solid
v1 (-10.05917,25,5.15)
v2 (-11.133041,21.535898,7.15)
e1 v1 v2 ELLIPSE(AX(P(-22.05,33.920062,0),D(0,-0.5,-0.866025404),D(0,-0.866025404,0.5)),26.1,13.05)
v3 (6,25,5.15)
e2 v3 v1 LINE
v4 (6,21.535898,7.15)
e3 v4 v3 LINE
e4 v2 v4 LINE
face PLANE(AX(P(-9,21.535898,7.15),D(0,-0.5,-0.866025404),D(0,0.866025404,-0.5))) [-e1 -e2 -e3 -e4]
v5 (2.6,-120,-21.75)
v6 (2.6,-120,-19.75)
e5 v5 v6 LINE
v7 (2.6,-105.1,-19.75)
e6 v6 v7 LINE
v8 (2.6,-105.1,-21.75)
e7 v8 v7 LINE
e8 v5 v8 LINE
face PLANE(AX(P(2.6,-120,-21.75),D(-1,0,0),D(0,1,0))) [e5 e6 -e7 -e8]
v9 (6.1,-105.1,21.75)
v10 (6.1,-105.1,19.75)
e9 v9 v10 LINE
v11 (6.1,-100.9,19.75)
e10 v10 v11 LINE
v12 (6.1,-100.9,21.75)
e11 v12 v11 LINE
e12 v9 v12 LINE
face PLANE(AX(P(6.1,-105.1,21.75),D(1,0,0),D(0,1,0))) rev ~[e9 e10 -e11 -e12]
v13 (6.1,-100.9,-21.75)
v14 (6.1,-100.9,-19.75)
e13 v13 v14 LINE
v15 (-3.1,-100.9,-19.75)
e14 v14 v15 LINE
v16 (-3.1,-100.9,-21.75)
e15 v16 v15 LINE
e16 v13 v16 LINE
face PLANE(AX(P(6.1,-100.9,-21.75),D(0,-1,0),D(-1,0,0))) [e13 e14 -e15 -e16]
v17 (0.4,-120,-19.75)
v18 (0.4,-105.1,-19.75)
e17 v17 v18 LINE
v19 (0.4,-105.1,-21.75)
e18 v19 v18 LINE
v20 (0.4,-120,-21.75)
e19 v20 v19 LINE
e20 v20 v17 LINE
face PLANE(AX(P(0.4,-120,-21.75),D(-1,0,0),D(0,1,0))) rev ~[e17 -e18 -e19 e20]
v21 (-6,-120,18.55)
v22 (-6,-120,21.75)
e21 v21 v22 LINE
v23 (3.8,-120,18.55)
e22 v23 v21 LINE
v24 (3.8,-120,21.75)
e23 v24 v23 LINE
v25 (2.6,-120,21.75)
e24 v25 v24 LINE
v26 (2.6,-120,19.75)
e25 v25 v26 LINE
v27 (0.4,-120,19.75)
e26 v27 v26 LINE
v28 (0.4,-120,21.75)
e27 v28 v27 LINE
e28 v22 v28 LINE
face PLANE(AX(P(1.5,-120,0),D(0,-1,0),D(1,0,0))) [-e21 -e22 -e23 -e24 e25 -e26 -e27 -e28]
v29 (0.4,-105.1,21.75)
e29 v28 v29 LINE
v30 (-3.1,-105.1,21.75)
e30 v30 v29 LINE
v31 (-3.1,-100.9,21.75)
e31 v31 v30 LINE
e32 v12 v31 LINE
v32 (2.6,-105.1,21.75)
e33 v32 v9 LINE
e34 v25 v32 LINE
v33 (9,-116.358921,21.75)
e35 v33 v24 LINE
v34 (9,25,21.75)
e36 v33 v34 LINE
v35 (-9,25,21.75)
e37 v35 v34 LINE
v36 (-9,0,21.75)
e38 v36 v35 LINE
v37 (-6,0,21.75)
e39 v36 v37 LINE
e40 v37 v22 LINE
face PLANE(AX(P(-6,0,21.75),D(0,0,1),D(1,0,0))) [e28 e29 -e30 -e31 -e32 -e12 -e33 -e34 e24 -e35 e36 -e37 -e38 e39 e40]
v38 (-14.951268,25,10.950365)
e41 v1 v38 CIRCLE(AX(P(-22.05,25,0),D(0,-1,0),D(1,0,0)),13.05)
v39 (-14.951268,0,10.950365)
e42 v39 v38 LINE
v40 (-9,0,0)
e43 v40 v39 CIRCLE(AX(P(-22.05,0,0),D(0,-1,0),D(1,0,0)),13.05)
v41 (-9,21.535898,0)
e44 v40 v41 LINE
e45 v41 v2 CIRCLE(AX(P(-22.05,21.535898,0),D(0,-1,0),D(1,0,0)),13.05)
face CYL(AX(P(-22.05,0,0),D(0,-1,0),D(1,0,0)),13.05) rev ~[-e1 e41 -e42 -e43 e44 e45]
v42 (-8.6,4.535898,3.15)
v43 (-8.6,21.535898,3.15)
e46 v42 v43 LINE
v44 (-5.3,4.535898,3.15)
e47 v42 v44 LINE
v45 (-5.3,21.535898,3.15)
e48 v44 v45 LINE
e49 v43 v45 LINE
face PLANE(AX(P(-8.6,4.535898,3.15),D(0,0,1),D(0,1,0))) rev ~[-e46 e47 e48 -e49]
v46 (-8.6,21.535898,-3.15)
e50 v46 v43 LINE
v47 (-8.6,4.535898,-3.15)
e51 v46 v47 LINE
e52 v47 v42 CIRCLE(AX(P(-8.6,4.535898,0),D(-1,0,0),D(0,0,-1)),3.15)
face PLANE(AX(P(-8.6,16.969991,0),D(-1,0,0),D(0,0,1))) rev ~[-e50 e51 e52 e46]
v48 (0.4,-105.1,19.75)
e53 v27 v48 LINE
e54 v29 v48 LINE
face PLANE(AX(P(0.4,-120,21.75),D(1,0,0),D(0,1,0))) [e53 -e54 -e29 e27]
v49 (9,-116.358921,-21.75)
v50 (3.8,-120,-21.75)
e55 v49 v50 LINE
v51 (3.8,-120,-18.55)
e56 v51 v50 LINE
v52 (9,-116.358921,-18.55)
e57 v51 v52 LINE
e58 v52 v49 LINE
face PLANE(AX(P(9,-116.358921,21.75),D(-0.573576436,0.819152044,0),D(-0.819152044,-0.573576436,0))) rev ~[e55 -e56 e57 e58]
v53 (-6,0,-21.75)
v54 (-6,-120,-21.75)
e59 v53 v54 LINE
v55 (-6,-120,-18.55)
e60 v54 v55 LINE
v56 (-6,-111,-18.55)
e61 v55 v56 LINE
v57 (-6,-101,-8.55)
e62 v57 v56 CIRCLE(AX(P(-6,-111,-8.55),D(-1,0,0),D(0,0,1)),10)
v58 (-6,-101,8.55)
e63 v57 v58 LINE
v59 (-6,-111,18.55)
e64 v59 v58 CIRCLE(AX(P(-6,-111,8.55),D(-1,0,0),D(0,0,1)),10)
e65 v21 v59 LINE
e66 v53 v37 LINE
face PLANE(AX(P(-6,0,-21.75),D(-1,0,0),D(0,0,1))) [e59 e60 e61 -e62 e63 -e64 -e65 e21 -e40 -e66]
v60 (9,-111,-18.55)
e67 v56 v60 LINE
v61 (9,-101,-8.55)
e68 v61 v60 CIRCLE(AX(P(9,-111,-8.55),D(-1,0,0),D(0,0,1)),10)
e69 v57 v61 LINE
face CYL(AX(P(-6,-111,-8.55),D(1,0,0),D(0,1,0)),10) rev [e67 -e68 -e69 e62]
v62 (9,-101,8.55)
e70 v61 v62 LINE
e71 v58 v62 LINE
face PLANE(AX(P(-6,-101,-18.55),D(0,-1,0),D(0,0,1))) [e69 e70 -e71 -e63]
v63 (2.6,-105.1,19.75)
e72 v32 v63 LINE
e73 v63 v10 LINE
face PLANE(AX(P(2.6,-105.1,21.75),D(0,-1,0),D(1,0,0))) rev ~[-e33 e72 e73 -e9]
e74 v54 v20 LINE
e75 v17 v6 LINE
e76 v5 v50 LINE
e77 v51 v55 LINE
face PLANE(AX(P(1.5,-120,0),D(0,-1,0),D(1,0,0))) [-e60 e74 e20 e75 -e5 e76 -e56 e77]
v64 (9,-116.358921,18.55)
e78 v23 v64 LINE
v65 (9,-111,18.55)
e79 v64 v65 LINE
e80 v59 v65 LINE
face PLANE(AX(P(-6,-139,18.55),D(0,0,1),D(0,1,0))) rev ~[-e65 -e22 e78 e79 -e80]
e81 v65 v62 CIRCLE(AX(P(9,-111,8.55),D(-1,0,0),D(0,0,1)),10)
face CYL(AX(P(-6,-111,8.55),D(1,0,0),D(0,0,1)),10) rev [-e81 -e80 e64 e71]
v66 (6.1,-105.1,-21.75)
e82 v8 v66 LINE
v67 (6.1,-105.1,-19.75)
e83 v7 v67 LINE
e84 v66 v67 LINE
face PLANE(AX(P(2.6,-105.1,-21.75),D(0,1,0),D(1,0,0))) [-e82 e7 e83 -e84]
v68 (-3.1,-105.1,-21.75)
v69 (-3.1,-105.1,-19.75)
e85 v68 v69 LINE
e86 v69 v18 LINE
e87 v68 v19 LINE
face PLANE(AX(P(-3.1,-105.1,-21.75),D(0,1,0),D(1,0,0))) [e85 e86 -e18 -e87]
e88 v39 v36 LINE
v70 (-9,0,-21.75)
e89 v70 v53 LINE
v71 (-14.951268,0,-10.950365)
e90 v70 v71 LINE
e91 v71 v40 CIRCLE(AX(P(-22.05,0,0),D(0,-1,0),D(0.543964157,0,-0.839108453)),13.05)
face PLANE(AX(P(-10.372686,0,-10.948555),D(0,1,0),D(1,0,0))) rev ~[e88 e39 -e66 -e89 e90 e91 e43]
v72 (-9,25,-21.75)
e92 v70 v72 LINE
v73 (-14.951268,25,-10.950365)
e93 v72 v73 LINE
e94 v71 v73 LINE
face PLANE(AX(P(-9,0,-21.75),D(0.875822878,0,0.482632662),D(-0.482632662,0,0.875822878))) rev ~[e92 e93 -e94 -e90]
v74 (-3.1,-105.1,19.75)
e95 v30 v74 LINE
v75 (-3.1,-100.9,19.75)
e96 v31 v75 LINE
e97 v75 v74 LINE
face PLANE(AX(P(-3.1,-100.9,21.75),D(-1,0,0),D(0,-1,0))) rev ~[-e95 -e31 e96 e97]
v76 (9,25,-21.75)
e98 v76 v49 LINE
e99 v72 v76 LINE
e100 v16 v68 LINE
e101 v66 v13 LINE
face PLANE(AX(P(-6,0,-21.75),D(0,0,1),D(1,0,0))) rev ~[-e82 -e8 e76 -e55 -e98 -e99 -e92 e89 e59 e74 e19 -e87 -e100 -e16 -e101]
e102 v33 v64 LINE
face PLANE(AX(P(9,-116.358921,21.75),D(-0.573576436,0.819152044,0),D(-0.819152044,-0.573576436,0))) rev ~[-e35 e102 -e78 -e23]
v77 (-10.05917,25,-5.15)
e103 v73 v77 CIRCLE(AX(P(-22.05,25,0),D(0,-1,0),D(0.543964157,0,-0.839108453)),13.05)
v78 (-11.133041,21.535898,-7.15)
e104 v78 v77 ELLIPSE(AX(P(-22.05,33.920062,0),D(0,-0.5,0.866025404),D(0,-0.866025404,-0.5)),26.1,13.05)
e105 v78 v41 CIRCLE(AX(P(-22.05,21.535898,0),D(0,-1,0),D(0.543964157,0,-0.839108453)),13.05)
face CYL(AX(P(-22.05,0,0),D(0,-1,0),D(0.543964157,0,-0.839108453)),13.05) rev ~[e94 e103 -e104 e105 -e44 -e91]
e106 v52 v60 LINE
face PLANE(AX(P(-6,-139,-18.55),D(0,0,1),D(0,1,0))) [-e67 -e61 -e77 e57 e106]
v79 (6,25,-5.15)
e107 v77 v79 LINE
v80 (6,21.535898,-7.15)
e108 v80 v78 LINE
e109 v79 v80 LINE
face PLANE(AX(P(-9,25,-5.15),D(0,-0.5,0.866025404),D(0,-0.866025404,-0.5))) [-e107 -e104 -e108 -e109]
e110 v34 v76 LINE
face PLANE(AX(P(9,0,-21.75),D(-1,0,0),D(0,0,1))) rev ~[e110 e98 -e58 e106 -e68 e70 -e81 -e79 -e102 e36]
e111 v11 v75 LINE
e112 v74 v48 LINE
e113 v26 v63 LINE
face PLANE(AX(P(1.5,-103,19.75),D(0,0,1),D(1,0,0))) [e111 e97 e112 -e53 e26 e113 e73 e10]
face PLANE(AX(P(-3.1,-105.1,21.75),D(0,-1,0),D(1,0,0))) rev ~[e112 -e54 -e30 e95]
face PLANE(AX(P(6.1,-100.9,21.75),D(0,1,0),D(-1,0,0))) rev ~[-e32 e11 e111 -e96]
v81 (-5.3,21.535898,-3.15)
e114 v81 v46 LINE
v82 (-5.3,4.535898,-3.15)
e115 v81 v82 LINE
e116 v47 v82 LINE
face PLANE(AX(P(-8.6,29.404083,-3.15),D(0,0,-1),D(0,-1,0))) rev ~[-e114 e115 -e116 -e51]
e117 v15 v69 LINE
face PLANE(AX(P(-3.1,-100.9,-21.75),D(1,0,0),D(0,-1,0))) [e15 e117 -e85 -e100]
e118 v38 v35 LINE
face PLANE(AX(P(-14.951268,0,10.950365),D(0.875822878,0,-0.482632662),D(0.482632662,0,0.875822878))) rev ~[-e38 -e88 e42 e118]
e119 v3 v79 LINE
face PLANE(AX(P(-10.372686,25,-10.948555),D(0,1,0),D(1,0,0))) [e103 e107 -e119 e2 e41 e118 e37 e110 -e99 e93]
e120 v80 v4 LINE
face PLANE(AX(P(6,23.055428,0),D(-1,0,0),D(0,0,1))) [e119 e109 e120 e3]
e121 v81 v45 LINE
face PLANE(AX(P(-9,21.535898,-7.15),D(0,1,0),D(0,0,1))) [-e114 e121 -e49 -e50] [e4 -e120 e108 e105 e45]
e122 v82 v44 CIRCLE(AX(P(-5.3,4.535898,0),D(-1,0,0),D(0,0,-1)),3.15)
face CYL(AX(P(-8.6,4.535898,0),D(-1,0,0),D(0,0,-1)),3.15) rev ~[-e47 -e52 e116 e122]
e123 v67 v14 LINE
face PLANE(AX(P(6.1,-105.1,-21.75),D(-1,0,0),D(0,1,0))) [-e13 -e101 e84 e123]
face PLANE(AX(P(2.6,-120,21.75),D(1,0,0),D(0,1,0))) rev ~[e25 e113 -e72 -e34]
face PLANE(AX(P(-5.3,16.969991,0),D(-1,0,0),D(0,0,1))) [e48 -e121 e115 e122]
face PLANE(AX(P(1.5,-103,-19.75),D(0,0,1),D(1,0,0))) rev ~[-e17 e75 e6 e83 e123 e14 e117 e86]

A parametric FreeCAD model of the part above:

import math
import FreeCAD as App
import Part
import Sketcher

V = App.Vector
Q = App.Units.Quantity


def edges_at(feature, points):
    """Names of the edges that pass closest to the given points."""
    edges = feature.Shape.Edges
    near = lambda p: min(range(len(edges)), key=lambda i: edges[i].distToShape(Part.Vertex(*p))[0])
    return sorted({f"Edge{near(p) + 1}" for p in points})


def add_polygon(sketch, points):
    """Adds a closed chain of lines whose ends are joined by coincident constraints."""
    first, n = sketch.GeometryCount, len(points)
    for a, b in zip(points, points[1:] + points[:1]):
        sketch.addGeometry(Part.LineSegment(App.Vector(*a, 0), App.Vector(*b, 0)), False)
    for i in range(n):
        sketch.addConstraint(Sketcher.Constraint("Coincident", first + i, 2, first + (i + 1) % n, 1))

doc = App.newDocument("Part")
body = doc.addObject("PartDesign::Body", "Body")

sketch1 = body.newObject("Sketcher::SketchObject", "Sketch")
sketch1.AttachmentSupport = (doc.getObject("XZ_Plane"), [""])
sketch1.MapMode = "FlatFace"
sketch1.addGeometry(Part.LineSegment(V(-9, -22, 0), V(-15, -11, 0)), False)
sketch1.addGeometry(Part.ArcOfCircle(Part.Circle(V(-22, 0, 0), V(0, 0, 1), 13), math.radians(-57), math.radians(0)), False)
sketch1.addGeometry(Part.ArcOfCircle(Part.Circle(V(-22, 0, 0), V(0, 0, 1), 13), math.radians(0), math.radians(57)), False)
sketch1.addGeometry(Part.LineSegment(V(-15, 11, 0), V(-9, 22, 0)), False)
sketch1.addGeometry(Part.LineSegment(V(-9, 22, 0), V(9, 22, 0)), False)
sketch1.addGeometry(Part.LineSegment(V(9, 22, 0), V(9, -22, 0)), False)
sketch1.addGeometry(Part.LineSegment(V(9, -22, 0), V(-9, -22, 0)), False)
sketch1.addConstraint(Sketcher.Constraint("Coincident", 0, 2, 1, 1))
sketch1.addConstraint(Sketcher.Constraint("Tangent", 1, 2, 2, 1))
sketch1.addConstraint(Sketcher.Constraint("Coincident", 2, 2, 3, 1))
sketch1.addConstraint(Sketcher.Constraint("Coincident", 3, 2, 4, 1))
sketch1.addConstraint(Sketcher.Constraint("Coincident", 4, 2, 5, 1))
sketch1.addConstraint(Sketcher.Constraint("Coincident", 5, 2, 6, 1))
sketch1.addConstraint(Sketcher.Constraint("Coincident", 6, 2, 0, 1))
sketch1.addConstraint(Sketcher.Constraint("Horizontal", 4))
sketch1.addConstraint(Sketcher.Constraint("Vertical", 5))
sketch1.addConstraint(Sketcher.Constraint("Horizontal", 6))
sketch1.addConstraint(Sketcher.Constraint("Equal", 1, 2))
sketch1.addConstraint(Sketcher.Constraint("Symmetric", 3, 2, 5, 2, -1, 1))
sketch1.addConstraint(Sketcher.Constraint("Symmetric", 0, 2, 2, 2, -1))
sketch1.addConstraint(Sketcher.Constraint("PointOnObject", 1, 2, -1))
sketch1.addConstraint(Sketcher.Constraint("Vertical", 1, 2, 3, 2))
sketch1.addConstraint(Sketcher.Constraint("Vertical", 3, 2, 6, 2))
sketch1.addConstraint(Sketcher.Constraint("DistanceX", 4, 1, 4, 2, 18.0))
sketch1.addConstraint(Sketcher.Constraint("Radius", 1, 13.05))
sketch1.addConstraint(Sketcher.Constraint("DistanceY", 5, 2, 5, 1, 43.5))
sketch1.addConstraint(Sketcher.Constraint("DistanceY", 0, 2, 2, 2, 21.900731))
pad1 = body.newObject("PartDesign::Pad", "Pad")
pad1.Profile = sketch1
pad1.Length = 25
pad1.Reversed = True

sketch2 = body.newObject("Sketcher::SketchObject", "Sketch001")
sketch2.AttachmentSupport = (doc.getObject("YZ_Plane"), [""])
sketch2.MapMode = "FlatFace"
sketch2.AttachmentOffset = App.Placement(V(0, 0, -9), App.Rotation())
add_polygon(sketch2, [(25, -5.2), (25, 5.2), (21.5, 7.2), (21.5, -7.2)])
sketch2.addConstraint(Sketcher.Constraint("Vertical", 0))
sketch2.addConstraint(Sketcher.Constraint("Vertical", 2))
sketch2.addConstraint(Sketcher.Constraint("Equal", 1, 3))
sketch2.addConstraint(Sketcher.Constraint("Angle", 1, Q("150 deg")))
sketch2.addConstraint(Sketcher.Constraint("Distance", 1, 4.0))
sketch2.addConstraint(Sketcher.Constraint("DistanceY", 0, 1, 0, 2, 10.3))
sketch2.addConstraint(Sketcher.Constraint("DistanceX", -1, 1, 0, 2, 25.0))
sketch2.addConstraint(Sketcher.Constraint("DistanceY", -1, 1, 0, 2, 5.15))
pocket1 = body.newObject("PartDesign::Pocket", "Pocket")
pocket1.Profile = sketch2
pocket1.Type = "TwoLengths"
pocket1.Length = 15
pocket1.Length2 = 6.951268
pocket1.Reversed = True

sketch3 = body.newObject("Sketcher::SketchObject", "Sketch002")
sketch3.AttachmentSupport = (doc.getObject("YZ_Plane"), [""])
sketch3.MapMode = "FlatFace"
sketch3.AttachmentOffset = App.Placement(V(0, 0, -8.6), App.Rotation())
sketch3.addGeometry(Part.LineSegment(V(4.5, -3.1, 0), V(29.4, -3.1, 0)), False)
sketch3.addGeometry(Part.ArcOfCircle(Part.Circle(V(29.4, 0, 0), V(0, 0, 1), 3.1), math.radians(-90), math.radians(90)), False)
sketch3.addGeometry(Part.LineSegment(V(29.4, 3.1, 0), V(4.5, 3.1, 0)), False)
sketch3.addGeometry(Part.ArcOfCircle(Part.Circle(V(4.5, 0, 0), V(0, 0, 1), 3.1), math.radians(90), math.radians(270)), False)
sketch3.addConstraint(Sketcher.Constraint("Tangent", 0, 2, 1, 1))
sketch3.addConstraint(Sketcher.Constraint("Tangent", 1, 2, 2, 1))
sketch3.addConstraint(Sketcher.Constraint("Tangent", 2, 2, 3, 1))
sketch3.addConstraint(Sketcher.Constraint("Tangent", 3, 2, 0, 1))
sketch3.addConstraint(Sketcher.Constraint("Horizontal", 0))
sketch3.addConstraint(Sketcher.Constraint("Horizontal", 2))
sketch3.addConstraint(Sketcher.Constraint("PointOnObject", 1, 3, -1))
sketch3.addConstraint(Sketcher.Constraint("Radius", 1, 3.15))
sketch3.addConstraint(Sketcher.Constraint("DistanceX", -1, 1, 3, 3, 4.535898))
sketch3.addConstraint(Sketcher.Constraint("DistanceX", 0, 1, 0, 2, 24.868184))
pocket2 = body.newObject("PartDesign::Pocket", "Pocket001")
pocket2.Profile = sketch3
pocket2.Length = 3.3
pocket2.Reversed = True

sketch4 = body.newObject("Sketcher::SketchObject", "Sketch003")
sketch4.AttachmentSupport = (doc.getObject("XZ_Plane"), [""])
sketch4.MapMode = "FlatFace"
add_polygon(sketch4, [(-6, 22), (-6, -22), (9, -22), (9, 22)])
sketch4.addConstraint(Sketcher.Constraint("Vertical", 0))
sketch4.addConstraint(Sketcher.Constraint("Horizontal", 1))
sketch4.addConstraint(Sketcher.Constraint("Vertical", 2))
sketch4.addConstraint(Sketcher.Constraint("Horizontal", 3))
sketch4.addConstraint(Sketcher.Constraint("DistanceX", 1, 1, 1, 2, 15.0))
sketch4.addConstraint(Sketcher.Constraint("DistanceY", 0, 2, 0, 1, 43.5))
sketch4.addConstraint(Sketcher.Constraint("DistanceX", 0, 2, -1, 1, 6.0))
sketch4.addConstraint(Sketcher.Constraint("DistanceY", 0, 2, -1, 1, 21.75))
pad2 = body.newObject("PartDesign::Pad", "Pad001")
pad2.Profile = sketch4
pad2.Length = 120

sketch5 = body.newObject("Sketcher::SketchObject", "Sketch004")
sketch5.AttachmentSupport = (doc.getObject("XY_Plane"), [""])
sketch5.MapMode = "FlatFace"
sketch5.AttachmentOffset = App.Placement(V(0, 0, 21.75), App.Rotation())
add_polygon(sketch5, [(-3.1, -105.1), (0.4, -105.1), (0.4, -120), (2.6, -120), (2.6, -105.1), (6.1, -105.1), (6.1, -100.9), (-3.1, -100.9)])
sketch5.addConstraint(Sketcher.Constraint("Horizontal", 0))
sketch5.addConstraint(Sketcher.Constraint("Vertical", 1))
sketch5.addConstraint(Sketcher.Constraint("Horizontal", 2))
sketch5.addConstraint(Sketcher.Constraint("Vertical", 3))
sketch5.addConstraint(Sketcher.Constraint("Horizontal", 4))
sketch5.addConstraint(Sketcher.Constraint("Vertical", 5))
sketch5.addConstraint(Sketcher.Constraint("Horizontal", 6))
sketch5.addConstraint(Sketcher.Constraint("Vertical", 7))
sketch5.addConstraint(Sketcher.Constraint("Horizontal", 0, 2, 3, 2))
sketch5.addConstraint(Sketcher.Constraint("Equal", 0, 4))
sketch5.addConstraint(Sketcher.Constraint("DistanceX", 0, 1, 0, 2, 3.5))
sketch5.addConstraint(Sketcher.Constraint("DistanceX", 2, 1, 2, 2, 2.2))
sketch5.addConstraint(Sketcher.Constraint("DistanceY", 1, 2, 1, 1, 14.9))
sketch5.addConstraint(Sketcher.Constraint("DistanceY", 5, 1, 5, 2, 4.2))
sketch5.addConstraint(Sketcher.Constraint("DistanceY", 1, 2, -1, 1, 120.0))
sketch5.addConstraint(Sketcher.Constraint("DistanceX", -1, 1, 0, 2, 0.4))
pocket3 = body.newObject("PartDesign::Pocket", "Pocket002")
pocket3.Profile = sketch5
pocket3.Length = 2

sketch6 = body.newObject("Sketcher::SketchObject", "Sketch005")
sketch6.AttachmentSupport = (doc.getObject("XY_Plane"), [""])
sketch6.MapMode = "FlatFace"
sketch6.AttachmentOffset = App.Placement(V(0, 0, -21.75), App.Rotation())
add_polygon(sketch6, [(-3.1, -105.1), (0.4, -105.1), (0.4, -120), (2.6, -120), (2.6, -105.1), (6.1, -105.1), (6.1, -100.9), (-3.1, -100.9)])
sketch6.addConstraint(Sketcher.Constraint("Horizontal", 0))
sketch6.addConstraint(Sketcher.Constraint("Vertical", 1))
sketch6.addConstraint(Sketcher.Constraint("Horizontal", 2))
sketch6.addConstraint(Sketcher.Constraint("Vertical", 3))
sketch6.addConstraint(Sketcher.Constraint("Horizontal", 4))
sketch6.addConstraint(Sketcher.Constraint("Vertical", 5))
sketch6.addConstraint(Sketcher.Constraint("Horizontal", 6))
sketch6.addConstraint(Sketcher.Constraint("Vertical", 7))
sketch6.addConstraint(Sketcher.Constraint("Horizontal", 0, 2, 3, 2))
sketch6.addConstraint(Sketcher.Constraint("Equal", 0, 4))
sketch6.addConstraint(Sketcher.Constraint("DistanceX", 0, 1, 0, 2, 3.5))
sketch6.addConstraint(Sketcher.Constraint("DistanceX", 2, 1, 2, 2, 2.2))
sketch6.addConstraint(Sketcher.Constraint("DistanceY", 1, 2, 1, 1, 14.9))
sketch6.addConstraint(Sketcher.Constraint("DistanceY", 5, 1, 5, 2, 4.2))
sketch6.addConstraint(Sketcher.Constraint("DistanceY", 1, 2, -1, 1, 120.0))
sketch6.addConstraint(Sketcher.Constraint("DistanceX", -1, 1, 0, 2, 0.4))
pocket4 = body.newObject("PartDesign::Pocket", "Pocket003")
pocket4.Profile = sketch6
pocket4.Length = 2
pocket4.Reversed = True

sketch7 = body.newObject("Sketcher::SketchObject", "Sketch006")
sketch7.AttachmentSupport = (doc.getObject("XY_Plane"), [""])
sketch7.MapMode = "FlatFace"
sketch7.AttachmentOffset = App.Placement(V(0, 0, 21.75), App.Rotation())
add_polygon(sketch7, [(9, -116.4), (3.8, -120), (9, -120)])
sketch7.addConstraint(Sketcher.Constraint("Horizontal", 1))
sketch7.addConstraint(Sketcher.Constraint("Vertical", 2))
sketch7.addConstraint(Sketcher.Constraint("Angle", 0, Q("-145 deg")))
sketch7.addConstraint(Sketcher.Constraint("DistanceX", 1, 1, 1, 2, 5.2))
sketch7.addConstraint(Sketcher.Constraint("DistanceY", 0, 2, -1, 1, 120.0))
sketch7.addConstraint(Sketcher.Constraint("DistanceX", -1, 1, 1, 2, 9.0))
pocket5 = body.newObject("PartDesign::Pocket", "Pocket004")
pocket5.Profile = sketch7
pocket5.Type = "ThroughAll"

sketch8 = body.newObject("Sketcher::SketchObject", "Sketch007")
sketch8.AttachmentSupport = (doc.getObject("YZ_Plane"), [""])
sketch8.MapMode = "FlatFace"
sketch8.AttachmentOffset = App.Placement(V(0, 0, -6), App.Rotation())
add_polygon(sketch8, [(-101, -19), (-139, -19), (-139, 19), (-101, 19)])
sketch8.addConstraint(Sketcher.Constraint("Horizontal", 0))
sketch8.addConstraint(Sketcher.Constraint("Vertical", 1))
sketch8.addConstraint(Sketcher.Constraint("Horizontal", 2))
sketch8.addConstraint(Sketcher.Constraint("Vertical", 3))
sketch8.addConstraint(Sketcher.Constraint("DistanceX", 0, 2, 0, 1, 38.0))
sketch8.addConstraint(Sketcher.Constraint("DistanceY", 1, 1, 1, 2, 37.1))
sketch8.addConstraint(Sketcher.Constraint("DistanceX", 0, 2, -1, 1, 139.0))
sketch8.addConstraint(Sketcher.Constraint("DistanceY", 0, 2, -1, 1, 18.55))
pocket6 = body.newObject("PartDesign::Pocket", "Pocket005")
pocket6.Profile = sketch8
pocket6.Type = "ThroughAll"
pocket6.Reversed = True
doc.recompute()

fillet = body.newObject("PartDesign::Fillet", "Fillet")
fillet.Base = (pocket6, edges_at(pocket6, [(1.5, -101, 18.55), (1.5, -101, -18.55)]))
fillet.Radius = 10

doc.recompute()
